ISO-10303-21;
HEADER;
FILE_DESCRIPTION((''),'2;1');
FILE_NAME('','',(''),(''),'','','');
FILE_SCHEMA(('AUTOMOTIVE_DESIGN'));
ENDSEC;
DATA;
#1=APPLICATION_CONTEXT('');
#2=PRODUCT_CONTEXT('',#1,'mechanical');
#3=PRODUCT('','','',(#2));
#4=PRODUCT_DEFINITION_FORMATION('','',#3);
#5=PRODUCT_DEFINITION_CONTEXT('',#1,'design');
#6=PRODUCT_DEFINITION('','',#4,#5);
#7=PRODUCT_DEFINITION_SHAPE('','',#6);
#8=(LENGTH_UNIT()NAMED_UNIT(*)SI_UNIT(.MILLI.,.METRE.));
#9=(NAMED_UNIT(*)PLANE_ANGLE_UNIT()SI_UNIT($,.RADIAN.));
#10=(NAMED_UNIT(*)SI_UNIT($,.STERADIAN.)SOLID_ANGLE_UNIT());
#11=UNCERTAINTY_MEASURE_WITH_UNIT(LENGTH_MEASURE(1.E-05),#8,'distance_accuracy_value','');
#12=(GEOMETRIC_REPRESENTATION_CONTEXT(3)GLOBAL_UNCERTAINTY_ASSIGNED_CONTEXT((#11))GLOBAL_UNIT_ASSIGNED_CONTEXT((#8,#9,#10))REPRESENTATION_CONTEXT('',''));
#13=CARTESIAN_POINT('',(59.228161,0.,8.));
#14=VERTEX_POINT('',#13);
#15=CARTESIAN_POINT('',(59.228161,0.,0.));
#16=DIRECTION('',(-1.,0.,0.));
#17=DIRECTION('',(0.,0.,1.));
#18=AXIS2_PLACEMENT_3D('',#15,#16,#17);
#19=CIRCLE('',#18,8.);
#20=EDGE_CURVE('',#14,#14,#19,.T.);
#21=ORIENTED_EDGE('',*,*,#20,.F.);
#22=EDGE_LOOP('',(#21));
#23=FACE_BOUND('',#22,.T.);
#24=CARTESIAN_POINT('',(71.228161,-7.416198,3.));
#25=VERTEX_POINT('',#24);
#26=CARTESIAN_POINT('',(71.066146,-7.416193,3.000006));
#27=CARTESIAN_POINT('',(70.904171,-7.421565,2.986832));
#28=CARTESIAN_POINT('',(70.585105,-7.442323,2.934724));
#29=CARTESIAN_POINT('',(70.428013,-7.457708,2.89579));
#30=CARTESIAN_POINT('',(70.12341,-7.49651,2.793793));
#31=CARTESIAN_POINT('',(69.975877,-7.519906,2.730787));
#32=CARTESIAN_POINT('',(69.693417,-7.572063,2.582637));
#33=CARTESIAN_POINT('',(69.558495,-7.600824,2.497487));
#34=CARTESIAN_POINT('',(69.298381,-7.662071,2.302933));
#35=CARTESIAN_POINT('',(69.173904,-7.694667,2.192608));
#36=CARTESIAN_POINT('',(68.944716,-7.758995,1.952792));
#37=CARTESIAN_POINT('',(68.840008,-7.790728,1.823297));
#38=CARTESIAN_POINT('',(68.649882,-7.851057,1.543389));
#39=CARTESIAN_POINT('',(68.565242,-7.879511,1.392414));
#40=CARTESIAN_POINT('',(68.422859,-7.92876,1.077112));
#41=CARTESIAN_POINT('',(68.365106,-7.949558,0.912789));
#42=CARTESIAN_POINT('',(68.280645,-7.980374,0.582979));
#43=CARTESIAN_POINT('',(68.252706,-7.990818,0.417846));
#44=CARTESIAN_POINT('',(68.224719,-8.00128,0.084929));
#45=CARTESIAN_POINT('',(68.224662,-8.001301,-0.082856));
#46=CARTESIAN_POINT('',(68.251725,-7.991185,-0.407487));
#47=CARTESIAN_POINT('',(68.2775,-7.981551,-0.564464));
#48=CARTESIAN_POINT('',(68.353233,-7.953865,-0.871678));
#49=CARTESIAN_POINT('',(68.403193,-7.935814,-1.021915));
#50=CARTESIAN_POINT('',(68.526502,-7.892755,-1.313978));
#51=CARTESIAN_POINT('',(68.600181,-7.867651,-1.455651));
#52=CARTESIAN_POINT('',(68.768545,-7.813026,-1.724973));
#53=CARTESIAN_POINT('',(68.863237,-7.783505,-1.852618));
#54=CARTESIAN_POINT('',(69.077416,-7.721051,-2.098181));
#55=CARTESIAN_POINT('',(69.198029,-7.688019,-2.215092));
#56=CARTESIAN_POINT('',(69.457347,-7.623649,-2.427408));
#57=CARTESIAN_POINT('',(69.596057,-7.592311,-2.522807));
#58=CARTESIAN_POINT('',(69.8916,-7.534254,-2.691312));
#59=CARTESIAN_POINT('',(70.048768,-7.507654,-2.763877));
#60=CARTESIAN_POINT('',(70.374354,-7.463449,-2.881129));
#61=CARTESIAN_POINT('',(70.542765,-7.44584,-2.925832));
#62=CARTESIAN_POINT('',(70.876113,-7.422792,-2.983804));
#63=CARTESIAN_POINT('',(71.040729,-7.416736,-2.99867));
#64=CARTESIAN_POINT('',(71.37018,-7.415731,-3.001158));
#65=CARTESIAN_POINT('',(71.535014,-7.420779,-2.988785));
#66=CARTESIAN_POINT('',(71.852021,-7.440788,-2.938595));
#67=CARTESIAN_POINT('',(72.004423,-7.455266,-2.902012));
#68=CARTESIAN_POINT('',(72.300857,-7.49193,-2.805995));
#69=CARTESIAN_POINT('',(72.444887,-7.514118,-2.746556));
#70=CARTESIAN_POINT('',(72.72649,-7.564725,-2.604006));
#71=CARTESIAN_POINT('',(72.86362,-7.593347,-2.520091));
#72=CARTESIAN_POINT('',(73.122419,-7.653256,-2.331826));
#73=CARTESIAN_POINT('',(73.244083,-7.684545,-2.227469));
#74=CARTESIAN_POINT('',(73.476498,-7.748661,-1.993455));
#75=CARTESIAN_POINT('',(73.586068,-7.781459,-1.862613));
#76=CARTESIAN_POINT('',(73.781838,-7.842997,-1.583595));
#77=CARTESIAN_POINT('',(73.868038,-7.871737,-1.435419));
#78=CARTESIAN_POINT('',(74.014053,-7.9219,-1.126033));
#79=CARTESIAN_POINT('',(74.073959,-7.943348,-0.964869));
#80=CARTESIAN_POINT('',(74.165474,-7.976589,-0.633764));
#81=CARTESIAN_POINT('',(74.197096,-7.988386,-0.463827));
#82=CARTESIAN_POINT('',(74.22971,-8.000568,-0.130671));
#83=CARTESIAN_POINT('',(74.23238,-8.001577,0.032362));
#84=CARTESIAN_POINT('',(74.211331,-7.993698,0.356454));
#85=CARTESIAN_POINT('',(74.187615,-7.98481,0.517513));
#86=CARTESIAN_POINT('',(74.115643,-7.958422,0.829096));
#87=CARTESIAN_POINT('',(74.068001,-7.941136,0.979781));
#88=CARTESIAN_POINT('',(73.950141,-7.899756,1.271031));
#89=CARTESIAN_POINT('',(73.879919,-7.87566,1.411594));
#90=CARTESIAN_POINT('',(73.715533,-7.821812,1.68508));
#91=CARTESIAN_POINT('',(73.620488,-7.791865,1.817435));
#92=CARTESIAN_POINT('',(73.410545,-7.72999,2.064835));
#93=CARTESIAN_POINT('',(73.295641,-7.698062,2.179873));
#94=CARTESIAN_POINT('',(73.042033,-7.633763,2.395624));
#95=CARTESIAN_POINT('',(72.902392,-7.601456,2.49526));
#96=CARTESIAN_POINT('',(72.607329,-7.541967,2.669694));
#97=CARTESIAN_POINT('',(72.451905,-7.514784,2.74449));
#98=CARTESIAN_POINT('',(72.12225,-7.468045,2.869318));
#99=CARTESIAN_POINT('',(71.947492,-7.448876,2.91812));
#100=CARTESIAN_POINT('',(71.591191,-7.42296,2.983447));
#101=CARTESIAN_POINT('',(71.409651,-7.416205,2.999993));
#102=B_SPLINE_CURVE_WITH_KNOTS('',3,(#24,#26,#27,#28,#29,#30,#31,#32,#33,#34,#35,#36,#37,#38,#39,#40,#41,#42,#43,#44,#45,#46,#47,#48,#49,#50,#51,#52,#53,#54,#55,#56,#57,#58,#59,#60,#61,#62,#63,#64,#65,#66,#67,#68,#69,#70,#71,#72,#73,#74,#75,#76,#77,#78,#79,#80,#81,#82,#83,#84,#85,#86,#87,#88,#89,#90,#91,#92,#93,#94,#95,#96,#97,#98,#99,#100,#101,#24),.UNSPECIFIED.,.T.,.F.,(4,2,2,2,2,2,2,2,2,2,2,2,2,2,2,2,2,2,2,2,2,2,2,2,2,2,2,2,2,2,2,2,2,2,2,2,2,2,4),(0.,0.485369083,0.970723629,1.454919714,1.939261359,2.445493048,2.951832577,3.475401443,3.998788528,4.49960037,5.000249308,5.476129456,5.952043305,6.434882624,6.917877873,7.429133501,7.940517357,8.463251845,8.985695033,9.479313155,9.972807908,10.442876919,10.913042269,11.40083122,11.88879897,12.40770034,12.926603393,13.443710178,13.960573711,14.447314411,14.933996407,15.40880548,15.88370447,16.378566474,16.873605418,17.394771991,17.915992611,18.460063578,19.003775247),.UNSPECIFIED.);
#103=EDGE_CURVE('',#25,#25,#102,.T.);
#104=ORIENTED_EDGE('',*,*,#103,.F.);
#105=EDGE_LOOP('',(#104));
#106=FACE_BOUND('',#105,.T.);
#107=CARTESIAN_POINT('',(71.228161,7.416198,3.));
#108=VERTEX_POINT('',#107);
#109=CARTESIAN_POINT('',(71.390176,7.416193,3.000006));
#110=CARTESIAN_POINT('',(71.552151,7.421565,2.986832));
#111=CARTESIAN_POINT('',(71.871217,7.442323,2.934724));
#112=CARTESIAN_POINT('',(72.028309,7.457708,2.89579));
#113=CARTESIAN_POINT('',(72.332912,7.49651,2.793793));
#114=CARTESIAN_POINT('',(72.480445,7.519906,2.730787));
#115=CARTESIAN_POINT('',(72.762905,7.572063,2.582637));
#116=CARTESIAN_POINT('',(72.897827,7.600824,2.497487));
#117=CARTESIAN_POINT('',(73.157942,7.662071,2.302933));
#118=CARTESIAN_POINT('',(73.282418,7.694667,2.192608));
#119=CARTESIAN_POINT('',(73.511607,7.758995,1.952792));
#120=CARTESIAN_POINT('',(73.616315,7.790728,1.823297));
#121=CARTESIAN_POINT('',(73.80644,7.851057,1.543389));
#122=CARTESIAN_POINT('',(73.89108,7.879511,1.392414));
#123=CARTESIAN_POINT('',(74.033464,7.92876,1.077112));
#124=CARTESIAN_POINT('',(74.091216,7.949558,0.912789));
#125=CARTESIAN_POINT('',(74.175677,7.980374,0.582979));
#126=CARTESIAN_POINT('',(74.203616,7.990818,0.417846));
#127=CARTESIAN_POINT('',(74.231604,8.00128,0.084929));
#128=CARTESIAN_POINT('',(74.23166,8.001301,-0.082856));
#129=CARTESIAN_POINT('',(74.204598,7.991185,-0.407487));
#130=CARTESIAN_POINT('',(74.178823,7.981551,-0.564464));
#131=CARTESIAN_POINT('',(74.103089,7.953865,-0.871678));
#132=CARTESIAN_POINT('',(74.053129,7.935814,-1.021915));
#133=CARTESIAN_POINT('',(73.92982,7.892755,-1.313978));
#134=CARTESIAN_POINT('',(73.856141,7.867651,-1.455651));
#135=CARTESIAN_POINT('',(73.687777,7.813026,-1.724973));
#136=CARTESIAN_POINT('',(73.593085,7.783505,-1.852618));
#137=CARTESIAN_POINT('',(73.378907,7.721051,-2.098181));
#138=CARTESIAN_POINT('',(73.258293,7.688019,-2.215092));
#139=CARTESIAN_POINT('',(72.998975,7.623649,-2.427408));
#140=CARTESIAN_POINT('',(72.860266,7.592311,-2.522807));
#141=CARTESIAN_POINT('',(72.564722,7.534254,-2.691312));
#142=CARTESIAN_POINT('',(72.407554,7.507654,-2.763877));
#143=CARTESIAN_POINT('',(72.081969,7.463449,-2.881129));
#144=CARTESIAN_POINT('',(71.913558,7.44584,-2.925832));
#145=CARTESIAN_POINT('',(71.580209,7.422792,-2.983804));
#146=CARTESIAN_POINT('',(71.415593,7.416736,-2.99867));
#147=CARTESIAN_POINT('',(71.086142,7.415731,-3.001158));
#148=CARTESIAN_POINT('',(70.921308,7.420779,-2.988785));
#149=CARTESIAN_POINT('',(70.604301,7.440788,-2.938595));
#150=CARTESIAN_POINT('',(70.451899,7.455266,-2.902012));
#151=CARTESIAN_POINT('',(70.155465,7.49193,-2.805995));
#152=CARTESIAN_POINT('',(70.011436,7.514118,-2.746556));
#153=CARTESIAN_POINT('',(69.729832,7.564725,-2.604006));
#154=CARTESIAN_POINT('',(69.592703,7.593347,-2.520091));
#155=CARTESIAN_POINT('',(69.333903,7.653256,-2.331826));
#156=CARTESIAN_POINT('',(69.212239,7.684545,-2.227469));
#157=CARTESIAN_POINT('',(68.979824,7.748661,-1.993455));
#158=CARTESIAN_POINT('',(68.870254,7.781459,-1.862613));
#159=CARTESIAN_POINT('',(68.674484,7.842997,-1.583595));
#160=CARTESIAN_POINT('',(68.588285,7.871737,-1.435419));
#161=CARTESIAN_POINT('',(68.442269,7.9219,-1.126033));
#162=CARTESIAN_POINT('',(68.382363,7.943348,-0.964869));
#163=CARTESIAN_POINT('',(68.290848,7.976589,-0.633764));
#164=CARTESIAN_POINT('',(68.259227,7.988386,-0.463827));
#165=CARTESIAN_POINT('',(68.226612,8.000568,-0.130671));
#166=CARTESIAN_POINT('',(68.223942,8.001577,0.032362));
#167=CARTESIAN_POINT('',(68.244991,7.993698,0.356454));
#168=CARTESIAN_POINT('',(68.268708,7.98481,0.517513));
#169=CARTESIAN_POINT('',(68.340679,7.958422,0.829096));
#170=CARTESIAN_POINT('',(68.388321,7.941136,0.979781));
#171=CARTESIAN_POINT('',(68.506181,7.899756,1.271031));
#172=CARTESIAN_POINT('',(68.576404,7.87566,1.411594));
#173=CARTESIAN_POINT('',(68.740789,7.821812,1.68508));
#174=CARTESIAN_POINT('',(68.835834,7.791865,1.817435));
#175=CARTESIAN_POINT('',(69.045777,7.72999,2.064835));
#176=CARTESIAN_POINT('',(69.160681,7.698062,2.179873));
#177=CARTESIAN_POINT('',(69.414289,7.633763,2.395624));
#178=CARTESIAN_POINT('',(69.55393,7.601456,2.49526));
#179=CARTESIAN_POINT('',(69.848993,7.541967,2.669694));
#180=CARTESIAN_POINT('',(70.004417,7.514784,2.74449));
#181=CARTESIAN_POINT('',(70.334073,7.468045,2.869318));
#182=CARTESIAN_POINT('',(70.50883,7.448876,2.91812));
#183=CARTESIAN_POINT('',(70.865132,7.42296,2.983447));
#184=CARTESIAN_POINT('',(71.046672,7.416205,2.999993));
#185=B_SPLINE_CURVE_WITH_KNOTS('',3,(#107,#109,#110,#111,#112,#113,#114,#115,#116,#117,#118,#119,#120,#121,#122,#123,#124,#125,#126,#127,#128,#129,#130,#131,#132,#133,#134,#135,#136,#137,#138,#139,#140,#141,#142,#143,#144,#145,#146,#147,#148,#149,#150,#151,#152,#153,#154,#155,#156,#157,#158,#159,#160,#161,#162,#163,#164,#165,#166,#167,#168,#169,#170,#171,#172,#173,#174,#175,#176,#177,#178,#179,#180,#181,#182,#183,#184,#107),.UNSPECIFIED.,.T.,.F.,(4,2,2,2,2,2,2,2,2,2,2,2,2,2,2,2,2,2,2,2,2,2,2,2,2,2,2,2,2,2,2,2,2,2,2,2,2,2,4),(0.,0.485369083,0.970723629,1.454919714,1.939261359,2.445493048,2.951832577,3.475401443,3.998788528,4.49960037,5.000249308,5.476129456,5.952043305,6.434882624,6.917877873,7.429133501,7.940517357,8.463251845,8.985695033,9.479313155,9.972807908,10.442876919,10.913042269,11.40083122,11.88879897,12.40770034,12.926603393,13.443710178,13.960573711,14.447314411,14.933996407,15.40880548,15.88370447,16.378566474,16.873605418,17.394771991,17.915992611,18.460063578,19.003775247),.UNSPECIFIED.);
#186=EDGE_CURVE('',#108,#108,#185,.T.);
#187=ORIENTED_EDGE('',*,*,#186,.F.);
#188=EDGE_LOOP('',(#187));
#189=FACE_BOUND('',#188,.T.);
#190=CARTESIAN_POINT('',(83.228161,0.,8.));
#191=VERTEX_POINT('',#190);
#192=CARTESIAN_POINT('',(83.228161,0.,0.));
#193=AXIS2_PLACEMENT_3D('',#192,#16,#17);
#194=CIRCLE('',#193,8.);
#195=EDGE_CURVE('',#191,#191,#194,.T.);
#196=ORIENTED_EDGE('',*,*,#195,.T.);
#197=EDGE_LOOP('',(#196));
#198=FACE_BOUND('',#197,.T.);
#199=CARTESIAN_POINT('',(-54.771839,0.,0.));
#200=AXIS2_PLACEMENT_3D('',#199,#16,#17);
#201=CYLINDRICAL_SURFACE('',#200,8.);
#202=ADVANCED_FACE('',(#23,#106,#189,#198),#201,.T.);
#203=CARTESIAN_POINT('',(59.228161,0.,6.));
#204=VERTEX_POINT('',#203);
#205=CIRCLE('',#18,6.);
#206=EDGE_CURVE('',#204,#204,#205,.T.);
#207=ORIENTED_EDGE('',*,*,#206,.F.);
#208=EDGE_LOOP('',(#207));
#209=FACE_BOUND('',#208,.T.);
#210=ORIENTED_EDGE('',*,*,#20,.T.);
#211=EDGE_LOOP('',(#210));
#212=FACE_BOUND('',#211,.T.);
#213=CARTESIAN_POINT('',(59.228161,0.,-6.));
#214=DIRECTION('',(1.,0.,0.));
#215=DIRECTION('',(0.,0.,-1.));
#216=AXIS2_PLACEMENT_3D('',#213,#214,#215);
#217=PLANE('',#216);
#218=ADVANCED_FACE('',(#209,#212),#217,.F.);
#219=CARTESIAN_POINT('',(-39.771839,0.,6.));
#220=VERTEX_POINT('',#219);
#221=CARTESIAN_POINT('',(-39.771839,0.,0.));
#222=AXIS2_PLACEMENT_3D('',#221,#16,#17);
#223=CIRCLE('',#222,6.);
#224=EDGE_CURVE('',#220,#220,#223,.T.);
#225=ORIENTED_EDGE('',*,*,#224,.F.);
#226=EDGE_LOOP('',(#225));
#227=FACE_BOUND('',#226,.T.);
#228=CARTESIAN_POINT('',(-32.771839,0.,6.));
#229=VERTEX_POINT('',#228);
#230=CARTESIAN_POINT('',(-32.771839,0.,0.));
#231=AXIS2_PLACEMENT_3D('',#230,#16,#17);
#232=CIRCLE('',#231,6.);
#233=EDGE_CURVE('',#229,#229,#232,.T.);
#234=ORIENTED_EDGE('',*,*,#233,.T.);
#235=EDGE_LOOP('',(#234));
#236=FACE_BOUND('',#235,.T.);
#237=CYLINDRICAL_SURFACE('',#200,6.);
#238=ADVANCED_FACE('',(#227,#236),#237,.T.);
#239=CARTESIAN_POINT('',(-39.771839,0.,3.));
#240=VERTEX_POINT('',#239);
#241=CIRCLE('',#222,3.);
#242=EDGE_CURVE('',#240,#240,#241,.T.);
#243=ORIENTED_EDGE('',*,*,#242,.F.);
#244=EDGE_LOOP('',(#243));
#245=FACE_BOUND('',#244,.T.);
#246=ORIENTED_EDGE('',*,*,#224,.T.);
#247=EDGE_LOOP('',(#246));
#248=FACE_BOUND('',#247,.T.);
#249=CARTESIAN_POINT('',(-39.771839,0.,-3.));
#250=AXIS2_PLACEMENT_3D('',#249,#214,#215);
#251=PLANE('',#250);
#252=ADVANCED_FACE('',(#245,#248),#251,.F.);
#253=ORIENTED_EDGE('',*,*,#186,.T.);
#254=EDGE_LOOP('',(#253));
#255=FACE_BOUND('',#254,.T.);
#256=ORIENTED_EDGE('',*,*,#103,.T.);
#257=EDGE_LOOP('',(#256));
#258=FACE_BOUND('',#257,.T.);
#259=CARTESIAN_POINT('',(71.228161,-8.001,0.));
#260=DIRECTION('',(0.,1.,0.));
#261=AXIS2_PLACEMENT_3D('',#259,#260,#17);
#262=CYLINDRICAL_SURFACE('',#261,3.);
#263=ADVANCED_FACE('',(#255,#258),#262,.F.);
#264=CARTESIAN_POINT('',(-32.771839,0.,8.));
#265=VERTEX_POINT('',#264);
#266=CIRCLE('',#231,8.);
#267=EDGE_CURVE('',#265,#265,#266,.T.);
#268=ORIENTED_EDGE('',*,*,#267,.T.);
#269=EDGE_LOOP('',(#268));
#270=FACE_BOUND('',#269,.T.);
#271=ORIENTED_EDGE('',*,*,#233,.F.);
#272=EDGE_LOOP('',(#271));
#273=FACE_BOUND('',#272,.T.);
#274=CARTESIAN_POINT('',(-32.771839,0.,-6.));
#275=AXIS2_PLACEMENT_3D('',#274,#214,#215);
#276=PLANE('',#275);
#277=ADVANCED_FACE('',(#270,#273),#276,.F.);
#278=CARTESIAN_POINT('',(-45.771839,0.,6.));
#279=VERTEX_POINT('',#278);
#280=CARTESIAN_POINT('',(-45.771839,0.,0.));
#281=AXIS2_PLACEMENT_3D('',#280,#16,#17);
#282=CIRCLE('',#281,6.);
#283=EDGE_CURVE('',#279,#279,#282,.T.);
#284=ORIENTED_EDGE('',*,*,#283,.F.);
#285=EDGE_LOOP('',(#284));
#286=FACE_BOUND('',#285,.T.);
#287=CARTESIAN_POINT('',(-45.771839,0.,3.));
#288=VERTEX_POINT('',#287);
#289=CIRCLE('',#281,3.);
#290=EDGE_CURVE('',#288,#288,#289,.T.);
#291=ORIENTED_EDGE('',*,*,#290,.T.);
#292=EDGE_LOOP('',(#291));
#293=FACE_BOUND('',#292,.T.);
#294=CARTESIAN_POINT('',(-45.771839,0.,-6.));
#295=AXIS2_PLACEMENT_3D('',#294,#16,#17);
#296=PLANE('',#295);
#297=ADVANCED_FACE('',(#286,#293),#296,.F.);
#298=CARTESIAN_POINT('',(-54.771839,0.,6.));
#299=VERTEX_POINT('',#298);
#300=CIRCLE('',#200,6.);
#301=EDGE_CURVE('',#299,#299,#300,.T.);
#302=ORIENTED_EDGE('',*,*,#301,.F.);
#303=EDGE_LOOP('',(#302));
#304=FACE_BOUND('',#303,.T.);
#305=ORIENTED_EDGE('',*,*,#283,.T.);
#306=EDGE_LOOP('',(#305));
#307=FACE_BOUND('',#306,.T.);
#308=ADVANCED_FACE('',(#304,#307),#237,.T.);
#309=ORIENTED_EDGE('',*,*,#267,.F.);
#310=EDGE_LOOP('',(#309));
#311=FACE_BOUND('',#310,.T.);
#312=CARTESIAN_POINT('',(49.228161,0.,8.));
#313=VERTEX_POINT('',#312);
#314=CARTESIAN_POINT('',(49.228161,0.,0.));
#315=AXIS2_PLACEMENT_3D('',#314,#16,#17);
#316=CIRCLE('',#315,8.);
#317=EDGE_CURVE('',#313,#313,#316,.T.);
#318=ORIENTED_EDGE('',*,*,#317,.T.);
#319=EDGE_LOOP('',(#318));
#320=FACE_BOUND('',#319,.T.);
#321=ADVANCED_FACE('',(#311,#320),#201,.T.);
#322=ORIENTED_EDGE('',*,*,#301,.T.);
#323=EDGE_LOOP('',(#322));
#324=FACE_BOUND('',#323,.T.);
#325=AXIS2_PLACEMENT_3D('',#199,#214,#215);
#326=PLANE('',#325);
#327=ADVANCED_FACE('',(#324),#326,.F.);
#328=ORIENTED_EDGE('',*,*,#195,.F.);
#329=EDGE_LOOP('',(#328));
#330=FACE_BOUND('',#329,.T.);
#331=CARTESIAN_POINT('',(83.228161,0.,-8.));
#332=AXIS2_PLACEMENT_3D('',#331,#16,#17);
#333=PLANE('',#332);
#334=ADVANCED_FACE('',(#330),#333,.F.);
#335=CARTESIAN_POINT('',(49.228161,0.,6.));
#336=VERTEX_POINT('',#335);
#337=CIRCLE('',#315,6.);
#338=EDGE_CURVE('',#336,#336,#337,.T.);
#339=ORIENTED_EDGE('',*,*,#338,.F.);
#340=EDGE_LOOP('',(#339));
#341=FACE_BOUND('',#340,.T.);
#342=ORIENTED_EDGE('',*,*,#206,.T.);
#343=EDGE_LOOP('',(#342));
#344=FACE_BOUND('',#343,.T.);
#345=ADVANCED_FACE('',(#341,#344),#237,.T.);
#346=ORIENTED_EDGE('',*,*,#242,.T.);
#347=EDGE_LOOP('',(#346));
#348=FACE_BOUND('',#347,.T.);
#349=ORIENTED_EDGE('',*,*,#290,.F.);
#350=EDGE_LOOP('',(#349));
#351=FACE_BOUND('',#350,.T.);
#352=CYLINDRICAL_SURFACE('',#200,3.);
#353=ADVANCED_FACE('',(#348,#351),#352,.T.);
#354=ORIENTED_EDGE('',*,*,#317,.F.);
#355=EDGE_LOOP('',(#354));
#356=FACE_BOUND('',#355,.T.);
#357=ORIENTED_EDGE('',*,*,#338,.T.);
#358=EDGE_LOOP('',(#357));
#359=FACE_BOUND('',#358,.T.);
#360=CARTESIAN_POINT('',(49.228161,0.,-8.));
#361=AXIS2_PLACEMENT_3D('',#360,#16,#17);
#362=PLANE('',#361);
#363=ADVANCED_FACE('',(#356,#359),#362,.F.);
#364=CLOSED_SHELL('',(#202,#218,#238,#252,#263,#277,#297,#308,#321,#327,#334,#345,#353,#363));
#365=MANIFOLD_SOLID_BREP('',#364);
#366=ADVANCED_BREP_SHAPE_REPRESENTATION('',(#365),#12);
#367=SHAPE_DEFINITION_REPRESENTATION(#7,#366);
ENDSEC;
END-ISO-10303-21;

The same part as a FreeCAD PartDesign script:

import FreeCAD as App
import Part
import Sketcher
from FreeCAD import Vector
Q = App.Units.Quantity


def add_polygon(sketch, points):
    """Adds a closed chain of lines whose ends are joined by coincident constraints."""
    first, n = sketch.GeometryCount, len(points)
    for a, b in zip(points, points[1:] + points[:1]):
        sketch.addGeometry(Part.LineSegment(App.Vector(*a, 0), App.Vector(*b, 0)), False)
    for i in range(n):
        sketch.addConstraint(Sketcher.Constraint("Coincident", first + i, 2, first + (i + 1) % n, 1))

doc = App.newDocument("Part")
params = doc.addObject("Spreadsheet::Sheet", "Params")
for row, (alias, value) in enumerate([
    ("sketch1_width", "138 mm"),
    ("sketch1_width2", "24 mm"),
    ("sketch1_width3", "10 mm"),
    ("sketch1_width4", "82 mm"),
    ("sketch1_width5", "7 mm"),
    ("revolution_angle", "360 deg"),
    ("sketch2_diameter", "6 mm"),
    ("pocket1_length", "16 mm"),
], start=1):
    params.set(f"A{row}", alias)
    params.set(f"B{row}", "=" + value)
    params.setAlias(f"B{row}", alias)

body = doc.addObject("PartDesign::Body", "Body")

# Sketch on XZ plane
sketch1 = body.newObject("Sketcher::SketchObject", "Sketch")
sketch1.AttachmentSupport = (doc.getObject("XZ_Plane"), [""])
sketch1.MapMode = "FlatFace"
add_polygon(sketch1, [(-54.771839, -6), (-54.771839, 0), (83.228161, 0), (83.228161, -8), (59.228161, -8), (59.228161, -6), (49.228161, -6), (49.228161, -8), (-32.771839, -8), (-32.771839, -6), (-39.771839, -6), (-39.771839, -3), (-45.771839, -3), (-45.771839, -6)])  # lines 0-13
sketch1.addConstraint(Sketcher.Constraint("Vertical", 0))
sketch1.addConstraint(Sketcher.Constraint("Horizontal", 1))
sketch1.addConstraint(Sketcher.Constraint("Vertical", 2))
sketch1.addConstraint(Sketcher.Constraint("Horizontal", 3))
sketch1.addConstraint(Sketcher.Constraint("Vertical", 4))
sketch1.addConstraint(Sketcher.Constraint("Horizontal", 5))
sketch1.addConstraint(Sketcher.Constraint("Vertical", 6))
sketch1.addConstraint(Sketcher.Constraint("Horizontal", 7))
sketch1.addConstraint(Sketcher.Constraint("Vertical", 8))
sketch1.addConstraint(Sketcher.Constraint("Horizontal", 9))
sketch1.addConstraint(Sketcher.Constraint("Vertical", 10))
sketch1.addConstraint(Sketcher.Constraint("Horizontal", 11))
sketch1.addConstraint(Sketcher.Constraint("Vertical", 12))
sketch1.addConstraint(Sketcher.Constraint("Horizontal", 13))
sketch1.addConstraint(Sketcher.Constraint("PointOnObject", 0, 2, -1))
sketch1.addConstraint(Sketcher.Constraint("Horizontal", 3, 2, 6, 2))
sketch1.addConstraint(Sketcher.Constraint("Horizontal", 5, 2, 8, 2))
sketch1.addConstraint(Sketcher.Constraint("Horizontal", 9, 2, 12, 2))
sketch1.addConstraint(Sketcher.Constraint("Equal", 11, 0))
sketch1.addConstraint(Sketcher.Constraint("DistanceX", 1, 1, 1, 2, Q("138 mm")))
sketch1.addConstraint(Sketcher.Constraint("DistanceX", 3, 2, 3, 1, Q("24 mm")))
sketch1.addConstraint(Sketcher.Constraint("DistanceX", 5, 2, 5, 1, Q("10 mm")))
sketch1.addConstraint(Sketcher.Constraint("DistanceX", 7, 2, 7, 1, Q("82 mm")))
sketch1.addConstraint(Sketcher.Constraint("DistanceX", 9, 2, 9, 1, Q("7 mm")))
sketch1.addConstraint(Sketcher.Constraint("DistanceX", 11, 2, 11, 1, Q("6 mm")))
sketch1.addConstraint(Sketcher.Constraint("DistanceY", 2, 2, 2, 1, Q("8 mm")))
sketch1.addConstraint(Sketcher.Constraint("DistanceY", 10, 1, 10, 2, Q("3 mm")))
sketch1.addConstraint(Sketcher.Constraint("DistanceX", 0, 2, -1, 1, Q("54.771839 mm")))
sketch1.setExpression("Constraints[33]", "Params.sketch1_width")
sketch1.setExpression("Constraints[34]", "Params.sketch1_width2")
sketch1.setExpression("Constraints[35]", "Params.sketch1_width3")
sketch1.setExpression("Constraints[36]", "Params.sketch1_width4")
sketch1.setExpression("Constraints[37]", "Params.sketch1_width5")
revolution = body.newObject("PartDesign::Revolution", "Revolution")
revolution.Profile = sketch1
revolution.ReferenceAxis = (sketch1, ["H_Axis"])
revolution.setExpression("Angle", "Params.revolution_angle")

# Sketch on XZ plane
sketch2 = body.newObject("Sketcher::SketchObject", "Sketch001")
sketch2.AttachmentSupport = (doc.getObject("XZ_Plane"), [""])
sketch2.MapMode = "FlatFace"
sketch2.AttachmentOffset = App.Placement(Vector(0, 0, -8), App.Rotation())
sketch2.addGeometry(Part.Circle(Vector(71.228161, 0, 0), Vector(0, 0, 1), 3), False)
sketch2.addConstraint(Sketcher.Constraint("PointOnObject", 0, 3, -1))
sketch2.addConstraint(Sketcher.Constraint("Diameter", 0, Q("6 mm")))
sketch2.addConstraint(Sketcher.Constraint("DistanceX", -1, 1, 0, 3, Q("71.228161 mm")))
sketch2.setExpression("Constraints[1]", "Params.sketch2_diameter")
pocket1 = body.newObject("PartDesign::Pocket", "Pocket")
pocket1.Profile = sketch2
pocket1.setExpression("Length", "Params.pocket1_length")
pocket1.Reversed = True

doc.recompute()
